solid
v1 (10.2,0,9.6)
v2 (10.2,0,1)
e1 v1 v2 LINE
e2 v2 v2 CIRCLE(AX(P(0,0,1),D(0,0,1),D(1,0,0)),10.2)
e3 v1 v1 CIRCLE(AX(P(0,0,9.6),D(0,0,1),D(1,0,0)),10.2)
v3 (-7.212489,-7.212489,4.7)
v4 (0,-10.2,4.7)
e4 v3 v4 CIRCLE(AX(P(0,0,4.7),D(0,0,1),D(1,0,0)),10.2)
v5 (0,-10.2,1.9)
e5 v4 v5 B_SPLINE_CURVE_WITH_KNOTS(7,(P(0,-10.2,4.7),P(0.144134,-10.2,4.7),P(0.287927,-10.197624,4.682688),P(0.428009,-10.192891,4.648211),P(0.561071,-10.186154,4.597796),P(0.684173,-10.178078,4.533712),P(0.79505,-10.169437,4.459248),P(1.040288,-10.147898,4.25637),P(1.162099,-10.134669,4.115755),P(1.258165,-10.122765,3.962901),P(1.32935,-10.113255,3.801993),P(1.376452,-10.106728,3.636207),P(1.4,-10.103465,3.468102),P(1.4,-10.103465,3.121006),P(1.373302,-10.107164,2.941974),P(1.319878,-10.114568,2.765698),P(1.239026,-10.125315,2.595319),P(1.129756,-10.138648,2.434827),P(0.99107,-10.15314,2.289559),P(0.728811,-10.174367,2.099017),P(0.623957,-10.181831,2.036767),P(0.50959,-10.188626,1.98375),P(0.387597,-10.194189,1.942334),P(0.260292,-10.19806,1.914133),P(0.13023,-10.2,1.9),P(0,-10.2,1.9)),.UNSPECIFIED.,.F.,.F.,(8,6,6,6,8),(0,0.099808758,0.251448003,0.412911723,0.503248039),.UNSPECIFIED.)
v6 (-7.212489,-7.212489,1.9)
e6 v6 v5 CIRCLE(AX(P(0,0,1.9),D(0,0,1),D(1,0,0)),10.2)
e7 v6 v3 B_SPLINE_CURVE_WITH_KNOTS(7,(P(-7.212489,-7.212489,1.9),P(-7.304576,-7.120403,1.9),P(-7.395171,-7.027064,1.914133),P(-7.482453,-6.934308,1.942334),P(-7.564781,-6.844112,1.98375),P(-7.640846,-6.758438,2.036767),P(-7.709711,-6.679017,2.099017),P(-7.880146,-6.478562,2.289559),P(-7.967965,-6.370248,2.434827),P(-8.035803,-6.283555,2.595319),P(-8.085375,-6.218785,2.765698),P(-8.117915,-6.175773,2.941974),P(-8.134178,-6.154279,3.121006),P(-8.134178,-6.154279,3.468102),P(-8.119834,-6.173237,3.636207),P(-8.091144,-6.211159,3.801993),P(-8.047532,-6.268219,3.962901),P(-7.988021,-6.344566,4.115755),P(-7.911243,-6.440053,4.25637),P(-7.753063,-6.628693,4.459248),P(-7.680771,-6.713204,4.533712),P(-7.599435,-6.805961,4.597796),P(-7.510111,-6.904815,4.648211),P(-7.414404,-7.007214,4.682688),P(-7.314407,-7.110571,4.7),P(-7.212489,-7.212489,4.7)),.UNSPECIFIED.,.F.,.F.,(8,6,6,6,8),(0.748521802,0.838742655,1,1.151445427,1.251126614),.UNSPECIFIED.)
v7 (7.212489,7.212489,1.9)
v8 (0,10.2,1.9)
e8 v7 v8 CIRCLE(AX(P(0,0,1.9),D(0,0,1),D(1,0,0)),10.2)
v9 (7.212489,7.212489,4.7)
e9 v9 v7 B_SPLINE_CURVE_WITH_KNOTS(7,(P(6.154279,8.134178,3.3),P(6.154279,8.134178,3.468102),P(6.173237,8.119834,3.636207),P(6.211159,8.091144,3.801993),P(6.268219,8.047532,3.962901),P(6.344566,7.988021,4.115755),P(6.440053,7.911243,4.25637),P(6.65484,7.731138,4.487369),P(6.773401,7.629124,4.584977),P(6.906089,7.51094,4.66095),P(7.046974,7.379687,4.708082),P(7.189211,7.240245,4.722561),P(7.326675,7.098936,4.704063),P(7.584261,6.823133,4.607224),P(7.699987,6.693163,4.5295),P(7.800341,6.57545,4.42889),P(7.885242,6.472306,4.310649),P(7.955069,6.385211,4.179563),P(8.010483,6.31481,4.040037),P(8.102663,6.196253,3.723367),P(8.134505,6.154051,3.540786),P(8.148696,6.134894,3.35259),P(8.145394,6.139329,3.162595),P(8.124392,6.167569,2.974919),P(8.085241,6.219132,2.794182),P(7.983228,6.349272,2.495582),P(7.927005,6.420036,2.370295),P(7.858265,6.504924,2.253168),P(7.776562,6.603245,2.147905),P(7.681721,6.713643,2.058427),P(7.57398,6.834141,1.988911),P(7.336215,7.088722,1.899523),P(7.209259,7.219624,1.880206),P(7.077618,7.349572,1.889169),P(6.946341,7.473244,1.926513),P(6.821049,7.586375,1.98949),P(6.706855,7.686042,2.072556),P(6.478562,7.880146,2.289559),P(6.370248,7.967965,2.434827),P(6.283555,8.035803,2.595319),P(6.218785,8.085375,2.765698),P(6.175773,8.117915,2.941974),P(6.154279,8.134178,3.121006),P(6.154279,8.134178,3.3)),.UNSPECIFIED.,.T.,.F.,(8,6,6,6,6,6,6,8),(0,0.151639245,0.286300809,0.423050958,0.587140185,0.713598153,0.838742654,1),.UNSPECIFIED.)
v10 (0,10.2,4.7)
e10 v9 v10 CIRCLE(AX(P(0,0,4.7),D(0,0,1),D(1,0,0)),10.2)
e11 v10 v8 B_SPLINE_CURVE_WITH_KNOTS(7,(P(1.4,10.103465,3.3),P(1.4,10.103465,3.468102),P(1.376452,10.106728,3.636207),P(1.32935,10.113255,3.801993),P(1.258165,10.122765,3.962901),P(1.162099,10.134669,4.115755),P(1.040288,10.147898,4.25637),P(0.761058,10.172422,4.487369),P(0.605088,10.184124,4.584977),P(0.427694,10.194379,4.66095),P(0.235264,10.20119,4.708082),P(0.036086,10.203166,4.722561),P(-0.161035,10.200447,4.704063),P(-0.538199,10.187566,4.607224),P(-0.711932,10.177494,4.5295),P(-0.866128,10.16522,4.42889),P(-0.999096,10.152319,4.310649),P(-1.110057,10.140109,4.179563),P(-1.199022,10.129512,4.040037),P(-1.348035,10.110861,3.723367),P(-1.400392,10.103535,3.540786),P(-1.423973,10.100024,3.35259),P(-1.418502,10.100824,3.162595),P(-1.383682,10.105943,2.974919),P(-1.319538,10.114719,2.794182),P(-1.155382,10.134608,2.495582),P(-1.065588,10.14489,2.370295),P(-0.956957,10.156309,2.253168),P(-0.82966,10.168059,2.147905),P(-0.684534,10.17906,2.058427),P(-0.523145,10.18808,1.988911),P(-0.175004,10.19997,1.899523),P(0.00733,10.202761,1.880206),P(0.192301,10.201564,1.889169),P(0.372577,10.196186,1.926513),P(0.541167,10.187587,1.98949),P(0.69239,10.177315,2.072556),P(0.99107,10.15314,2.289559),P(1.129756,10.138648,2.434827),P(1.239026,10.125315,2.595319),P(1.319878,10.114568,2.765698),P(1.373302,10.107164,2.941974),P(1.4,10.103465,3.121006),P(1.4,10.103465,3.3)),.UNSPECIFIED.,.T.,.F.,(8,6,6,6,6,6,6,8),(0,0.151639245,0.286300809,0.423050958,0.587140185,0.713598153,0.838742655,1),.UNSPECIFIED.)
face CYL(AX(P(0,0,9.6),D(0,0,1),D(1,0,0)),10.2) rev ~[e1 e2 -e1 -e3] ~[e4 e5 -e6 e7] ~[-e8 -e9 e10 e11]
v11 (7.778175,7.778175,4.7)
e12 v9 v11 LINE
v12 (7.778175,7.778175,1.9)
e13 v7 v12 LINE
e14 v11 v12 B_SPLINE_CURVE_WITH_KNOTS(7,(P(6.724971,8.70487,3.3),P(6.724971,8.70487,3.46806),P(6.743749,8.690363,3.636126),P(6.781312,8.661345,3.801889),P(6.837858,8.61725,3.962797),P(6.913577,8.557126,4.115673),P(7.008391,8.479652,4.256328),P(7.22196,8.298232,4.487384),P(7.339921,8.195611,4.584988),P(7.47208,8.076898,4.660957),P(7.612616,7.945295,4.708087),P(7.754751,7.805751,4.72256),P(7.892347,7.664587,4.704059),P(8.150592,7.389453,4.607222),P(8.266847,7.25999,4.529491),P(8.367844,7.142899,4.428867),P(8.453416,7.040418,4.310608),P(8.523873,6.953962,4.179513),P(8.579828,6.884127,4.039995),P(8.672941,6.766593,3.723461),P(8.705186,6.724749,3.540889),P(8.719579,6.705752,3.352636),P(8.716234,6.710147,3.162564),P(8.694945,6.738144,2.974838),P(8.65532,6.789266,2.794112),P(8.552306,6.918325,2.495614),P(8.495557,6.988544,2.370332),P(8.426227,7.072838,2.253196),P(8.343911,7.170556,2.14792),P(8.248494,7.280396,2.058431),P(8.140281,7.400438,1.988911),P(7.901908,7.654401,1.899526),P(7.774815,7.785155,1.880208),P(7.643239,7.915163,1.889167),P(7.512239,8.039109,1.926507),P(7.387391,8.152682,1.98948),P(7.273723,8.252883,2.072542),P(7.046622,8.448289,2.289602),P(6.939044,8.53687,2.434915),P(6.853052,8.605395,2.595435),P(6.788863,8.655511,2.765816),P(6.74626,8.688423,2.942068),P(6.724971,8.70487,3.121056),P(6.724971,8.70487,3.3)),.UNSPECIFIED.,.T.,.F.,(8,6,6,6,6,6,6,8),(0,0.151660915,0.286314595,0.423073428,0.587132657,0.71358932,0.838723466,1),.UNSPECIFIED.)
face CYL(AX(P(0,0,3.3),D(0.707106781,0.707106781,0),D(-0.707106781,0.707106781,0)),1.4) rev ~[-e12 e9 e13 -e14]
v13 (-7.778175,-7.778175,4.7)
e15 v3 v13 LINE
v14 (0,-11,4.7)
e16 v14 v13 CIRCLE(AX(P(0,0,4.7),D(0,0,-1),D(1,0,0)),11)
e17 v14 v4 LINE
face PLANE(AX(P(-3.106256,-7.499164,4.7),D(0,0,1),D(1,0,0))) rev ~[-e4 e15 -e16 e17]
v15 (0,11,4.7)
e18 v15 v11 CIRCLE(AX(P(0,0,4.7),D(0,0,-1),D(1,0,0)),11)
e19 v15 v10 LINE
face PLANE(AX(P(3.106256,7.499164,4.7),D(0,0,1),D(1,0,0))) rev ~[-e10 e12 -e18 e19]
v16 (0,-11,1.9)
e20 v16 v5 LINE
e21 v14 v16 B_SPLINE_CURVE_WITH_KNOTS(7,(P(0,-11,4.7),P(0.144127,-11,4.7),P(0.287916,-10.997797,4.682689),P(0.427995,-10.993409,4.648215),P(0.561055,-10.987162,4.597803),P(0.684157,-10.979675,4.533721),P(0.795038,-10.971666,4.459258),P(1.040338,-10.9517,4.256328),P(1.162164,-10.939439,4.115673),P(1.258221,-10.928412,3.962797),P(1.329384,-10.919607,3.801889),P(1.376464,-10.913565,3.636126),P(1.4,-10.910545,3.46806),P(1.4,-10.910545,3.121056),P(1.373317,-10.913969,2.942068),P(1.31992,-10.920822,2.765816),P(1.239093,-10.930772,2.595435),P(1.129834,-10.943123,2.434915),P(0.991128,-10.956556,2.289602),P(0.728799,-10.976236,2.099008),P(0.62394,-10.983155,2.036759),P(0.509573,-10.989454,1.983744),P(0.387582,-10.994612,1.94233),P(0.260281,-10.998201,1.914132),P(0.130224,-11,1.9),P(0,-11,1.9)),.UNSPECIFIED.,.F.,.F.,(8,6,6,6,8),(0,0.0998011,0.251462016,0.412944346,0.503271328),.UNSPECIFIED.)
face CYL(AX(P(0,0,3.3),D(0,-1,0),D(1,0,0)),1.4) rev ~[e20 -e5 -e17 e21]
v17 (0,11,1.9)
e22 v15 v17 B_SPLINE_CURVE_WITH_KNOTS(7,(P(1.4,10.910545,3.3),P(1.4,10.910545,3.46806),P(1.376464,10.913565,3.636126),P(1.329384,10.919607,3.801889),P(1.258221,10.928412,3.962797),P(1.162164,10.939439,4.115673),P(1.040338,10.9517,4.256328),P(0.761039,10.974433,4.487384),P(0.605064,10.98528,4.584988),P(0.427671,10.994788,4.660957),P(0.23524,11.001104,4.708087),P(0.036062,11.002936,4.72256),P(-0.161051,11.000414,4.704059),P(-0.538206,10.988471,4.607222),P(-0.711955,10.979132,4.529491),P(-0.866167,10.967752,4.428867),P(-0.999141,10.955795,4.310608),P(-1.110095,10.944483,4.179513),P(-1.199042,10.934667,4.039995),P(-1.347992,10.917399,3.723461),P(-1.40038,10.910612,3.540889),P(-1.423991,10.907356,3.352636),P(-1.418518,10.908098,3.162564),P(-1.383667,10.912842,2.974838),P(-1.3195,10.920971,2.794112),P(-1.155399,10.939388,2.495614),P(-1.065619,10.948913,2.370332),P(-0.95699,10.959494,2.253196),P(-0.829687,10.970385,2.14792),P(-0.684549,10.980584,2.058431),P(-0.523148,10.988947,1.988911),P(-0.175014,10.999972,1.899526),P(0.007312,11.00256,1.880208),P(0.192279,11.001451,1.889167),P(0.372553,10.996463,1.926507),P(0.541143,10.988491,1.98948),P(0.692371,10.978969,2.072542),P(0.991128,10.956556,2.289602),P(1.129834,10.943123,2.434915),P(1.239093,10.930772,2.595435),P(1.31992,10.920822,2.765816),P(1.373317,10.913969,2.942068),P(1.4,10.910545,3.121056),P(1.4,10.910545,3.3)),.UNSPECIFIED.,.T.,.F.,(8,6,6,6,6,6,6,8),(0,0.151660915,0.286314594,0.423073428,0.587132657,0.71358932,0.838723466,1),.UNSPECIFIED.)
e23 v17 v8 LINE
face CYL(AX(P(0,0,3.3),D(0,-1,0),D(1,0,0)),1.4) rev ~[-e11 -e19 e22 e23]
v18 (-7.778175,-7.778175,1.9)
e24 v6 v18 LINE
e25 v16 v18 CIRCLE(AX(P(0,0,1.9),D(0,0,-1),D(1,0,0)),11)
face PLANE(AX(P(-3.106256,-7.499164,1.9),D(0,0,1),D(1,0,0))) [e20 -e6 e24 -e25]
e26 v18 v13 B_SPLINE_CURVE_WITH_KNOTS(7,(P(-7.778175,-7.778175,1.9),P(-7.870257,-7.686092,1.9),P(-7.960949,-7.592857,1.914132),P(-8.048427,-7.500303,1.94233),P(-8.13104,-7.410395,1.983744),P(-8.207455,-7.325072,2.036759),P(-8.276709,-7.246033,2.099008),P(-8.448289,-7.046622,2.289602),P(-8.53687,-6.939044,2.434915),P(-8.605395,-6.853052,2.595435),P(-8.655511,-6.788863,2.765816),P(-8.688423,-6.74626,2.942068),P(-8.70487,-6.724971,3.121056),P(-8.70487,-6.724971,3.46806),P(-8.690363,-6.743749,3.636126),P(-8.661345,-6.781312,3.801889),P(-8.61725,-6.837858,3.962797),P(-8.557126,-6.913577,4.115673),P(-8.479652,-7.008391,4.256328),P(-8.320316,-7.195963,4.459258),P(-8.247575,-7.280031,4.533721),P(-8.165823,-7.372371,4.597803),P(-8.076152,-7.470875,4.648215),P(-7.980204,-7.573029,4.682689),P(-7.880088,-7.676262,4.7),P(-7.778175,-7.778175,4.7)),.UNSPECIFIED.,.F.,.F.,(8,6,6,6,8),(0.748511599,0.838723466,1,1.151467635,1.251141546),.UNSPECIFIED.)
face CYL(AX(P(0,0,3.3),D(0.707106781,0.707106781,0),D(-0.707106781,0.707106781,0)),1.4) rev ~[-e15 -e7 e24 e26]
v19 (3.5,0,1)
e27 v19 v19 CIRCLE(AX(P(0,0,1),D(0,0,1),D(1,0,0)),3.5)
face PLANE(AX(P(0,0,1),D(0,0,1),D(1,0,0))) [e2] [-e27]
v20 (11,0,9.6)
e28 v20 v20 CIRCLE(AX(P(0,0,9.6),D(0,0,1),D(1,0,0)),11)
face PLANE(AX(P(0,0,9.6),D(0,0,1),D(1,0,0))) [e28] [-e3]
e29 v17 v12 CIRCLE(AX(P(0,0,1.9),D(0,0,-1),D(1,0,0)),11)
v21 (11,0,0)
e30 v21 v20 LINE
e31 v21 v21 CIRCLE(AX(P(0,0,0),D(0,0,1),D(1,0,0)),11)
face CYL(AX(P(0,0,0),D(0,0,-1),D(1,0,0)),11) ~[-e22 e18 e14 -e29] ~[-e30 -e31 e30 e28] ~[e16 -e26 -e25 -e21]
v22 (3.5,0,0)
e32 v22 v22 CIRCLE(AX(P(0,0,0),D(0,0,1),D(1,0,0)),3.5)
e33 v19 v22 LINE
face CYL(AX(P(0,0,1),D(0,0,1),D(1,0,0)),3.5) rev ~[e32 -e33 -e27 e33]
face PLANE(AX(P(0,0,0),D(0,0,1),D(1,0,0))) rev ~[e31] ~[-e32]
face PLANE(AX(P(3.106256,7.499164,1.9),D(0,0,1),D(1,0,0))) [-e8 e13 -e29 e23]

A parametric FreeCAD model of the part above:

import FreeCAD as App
import Part
import Sketcher
from FreeCAD import Vector
Q = App.Units.Quantity

doc = App.newDocument("Part")
body = doc.addObject("PartDesign::Body", "Body")

# Sketch on XY plane
sketch1 = body.newObject("Sketcher::SketchObject", "Sketch")
sketch1.AttachmentSupport = (doc.getObject("XY_Plane"), [""])
sketch1.MapMode = "FlatFace"
sketch1.addGeometry(Part.Circle(Vector(0, 0, 0), Vector(0, 0, 1), 11), False)
sketch1.addConstraint(Sketcher.Constraint("Coincident", 0, 3, -1, 1))
sketch1.addConstraint(Sketcher.Constraint("Diameter", 0, Q("22 mm")))
pad1 = body.newObject("PartDesign::Pad", "Pad")
pad1.Profile = sketch1
pad1.Length = 9.6

# Sketch on XY plane
sketch2 = body.newObject("Sketcher::SketchObject", "Sketch001")
sketch2.AttachmentSupport = (doc.getObject("XY_Plane"), [""])
sketch2.MapMode = "FlatFace"
sketch2.AttachmentOffset = App.Placement(Vector(0, 0, 9.6), App.Rotation())
sketch2.addGeometry(Part.Circle(Vector(0, 0, 0), Vector(0, 0, 1), 10), False)
sketch2.addConstraint(Sketcher.Constraint("Coincident", 0, 3, -1, 1))
sketch2.addConstraint(Sketcher.Constraint("Diameter", 0, Q("20.4 mm")))
pocket1 = body.newObject("PartDesign::Pocket", "Pocket")
pocket1.Profile = sketch2
pocket1.Length = 8.6

# Sketch on XZ plane
sketch3 = body.newObject("Sketcher::SketchObject", "Sketch002")
sketch3.AttachmentSupport = (doc.getObject("XZ_Plane"), [""])
sketch3.MapMode = "FlatFace"
sketch3.addGeometry(Part.Circle(Vector(0, 3.3, 0), Vector(0, 0, 1), 1.4), False)
sketch3.addConstraint(Sketcher.Constraint("PointOnObject", 0, 3, -2))
sketch3.addConstraint(Sketcher.Constraint("Diameter", 0, Q("2.8 mm")))
sketch3.addConstraint(Sketcher.Constraint("DistanceY", -1, 1, 0, 3, Q("3.3 mm")))
pocket2 = body.newObject("PartDesign::Pocket", "Pocket001")
pocket2.Profile = sketch3
pocket2.Length = 25
pocket2.Midplane = True

# Sketch on an angled plane
sketch4 = body.newObject("Sketcher::SketchObject", "Sketch003")
sketch4.Placement = App.Placement(Vector(0, 0, 0), App.Rotation(Vector(-0.707106781, 0.707106781, 0), Vector(0, 0, 0.999999999), Vector(0.707106781, 0.707106781, 0), "ZXY"))
sketch4.addGeometry(Part.Circle(Vector(0, 3.3, 0), Vector(0, 0, 1), 1.4), False)
sketch4.addConstraint(Sketcher.Constraint("PointOnObject", 0, 3, -2))
sketch4.addConstraint(Sketcher.Constraint("Diameter", 0, Q("2.8 mm")))
sketch4.addConstraint(Sketcher.Constraint("DistanceY", -1, 1, 0, 3, Q("3.3 mm")))
pocket3 = body.newObject("PartDesign::Pocket", "Pocket002")
pocket3.Profile = sketch4
pocket3.Length = 25
pocket3.Midplane = True

# Sketch on XY plane
sketch5 = body.newObject("Sketcher::SketchObject", "Sketch004")
sketch5.AttachmentSupport = (doc.getObject("XY_Plane"), [""])
sketch5.MapMode = "FlatFace"
sketch5.AttachmentOffset = App.Placement(Vector(0, 0, 1.9), App.Rotation())
sketch5.addGeometry(Part.LineSegment(Vector(0, 14, 0), Vector(0, 0, 0)), False)
sketch5.addGeometry(Part.LineSegment(Vector(0, 0, 0), Vector(10, 10, 0)), False)
sketch5.addGeometry(Part.LineSegment(Vector(10, 10, 0), Vector(0, 14, 0)), False)
sketch5.addGeometry(Part.LineSegment(Vector(0, -14, 0), Vector(0, 0, 0)), False)
sketch5.addGeometry(Part.LineSegment(Vector(0, 0, 0), Vector(-10, -10, 0)), False)
sketch5.addGeometry(Part.LineSegment(Vector(-10, -10, 0), Vector(0, -14, 0)), False)
sketch5.addConstraint(Sketcher.Constraint("Coincident", 0, 2, 1, 1))
sketch5.addConstraint(Sketcher.Constraint("Coincident", 1, 2, 2, 1))
sketch5.addConstraint(Sketcher.Constraint("Coincident", 2, 2, 0, 1))
sketch5.addConstraint(Sketcher.Constraint("Coincident", 3, 2, 4, 1))
sketch5.addConstraint(Sketcher.Constraint("Coincident", 4, 2, 5, 1))
sketch5.addConstraint(Sketcher.Constraint("Coincident", 5, 2, 3, 1))
sketch5.addConstraint(Sketcher.Constraint("Vertical", 0))
sketch5.addConstraint(Sketcher.Constraint("Vertical", 3))
sketch5.addConstraint(Sketcher.Constraint("Coincident", 0, 2, -1, 1))
sketch5.addConstraint(Sketcher.Constraint("Coincident", 3, 2, -1, 1))
sketch5.addConstraint(Sketcher.Constraint("Symmetric", 1, 2, 4, 2, -1, 1))
sketch5.addConstraint(Sketcher.Constraint("Parallel", 2, 5))
sketch5.addConstraint(Sketcher.Constraint("Angle", 1, Q("45 deg")))
sketch5.addConstraint(Sketcher.Constraint("Angle", 2, Q("157.5 deg")))
sketch5.addConstraint(Sketcher.Constraint("DistanceY", 4, 2, 2, 2, Q("23.494199 mm")))
pocket4 = body.newObject("PartDesign::Pocket", "Pocket003")
pocket4.Profile = sketch5
pocket4.Length = 2.8
pocket4.Reversed = True

# Sketch on XY plane
sketch6 = body.newObject("Sketcher::SketchObject", "Sketch005")
sketch6.AttachmentSupport = (doc.getObject("XY_Plane"), [""])
sketch6.MapMode = "FlatFace"
sketch6.AttachmentOffset = App.Placement(Vector(0, 0, 1), App.Rotation())
sketch6.addGeometry(Part.Circle(Vector(0, 0, 0), Vector(0, 0, 1), 3.5), False)
sketch6.addConstraint(Sketcher.Constraint("Coincident", 0, 3, -1, 1))
sketch6.addConstraint(Sketcher.Constraint("Diameter", 0, Q("7 mm")))
pocket5 = body.newObject("PartDesign::Pocket", "Pocket004")
pocket5.Profile = sketch6
pocket5.Type = "ThroughAll"

doc.recompute()
